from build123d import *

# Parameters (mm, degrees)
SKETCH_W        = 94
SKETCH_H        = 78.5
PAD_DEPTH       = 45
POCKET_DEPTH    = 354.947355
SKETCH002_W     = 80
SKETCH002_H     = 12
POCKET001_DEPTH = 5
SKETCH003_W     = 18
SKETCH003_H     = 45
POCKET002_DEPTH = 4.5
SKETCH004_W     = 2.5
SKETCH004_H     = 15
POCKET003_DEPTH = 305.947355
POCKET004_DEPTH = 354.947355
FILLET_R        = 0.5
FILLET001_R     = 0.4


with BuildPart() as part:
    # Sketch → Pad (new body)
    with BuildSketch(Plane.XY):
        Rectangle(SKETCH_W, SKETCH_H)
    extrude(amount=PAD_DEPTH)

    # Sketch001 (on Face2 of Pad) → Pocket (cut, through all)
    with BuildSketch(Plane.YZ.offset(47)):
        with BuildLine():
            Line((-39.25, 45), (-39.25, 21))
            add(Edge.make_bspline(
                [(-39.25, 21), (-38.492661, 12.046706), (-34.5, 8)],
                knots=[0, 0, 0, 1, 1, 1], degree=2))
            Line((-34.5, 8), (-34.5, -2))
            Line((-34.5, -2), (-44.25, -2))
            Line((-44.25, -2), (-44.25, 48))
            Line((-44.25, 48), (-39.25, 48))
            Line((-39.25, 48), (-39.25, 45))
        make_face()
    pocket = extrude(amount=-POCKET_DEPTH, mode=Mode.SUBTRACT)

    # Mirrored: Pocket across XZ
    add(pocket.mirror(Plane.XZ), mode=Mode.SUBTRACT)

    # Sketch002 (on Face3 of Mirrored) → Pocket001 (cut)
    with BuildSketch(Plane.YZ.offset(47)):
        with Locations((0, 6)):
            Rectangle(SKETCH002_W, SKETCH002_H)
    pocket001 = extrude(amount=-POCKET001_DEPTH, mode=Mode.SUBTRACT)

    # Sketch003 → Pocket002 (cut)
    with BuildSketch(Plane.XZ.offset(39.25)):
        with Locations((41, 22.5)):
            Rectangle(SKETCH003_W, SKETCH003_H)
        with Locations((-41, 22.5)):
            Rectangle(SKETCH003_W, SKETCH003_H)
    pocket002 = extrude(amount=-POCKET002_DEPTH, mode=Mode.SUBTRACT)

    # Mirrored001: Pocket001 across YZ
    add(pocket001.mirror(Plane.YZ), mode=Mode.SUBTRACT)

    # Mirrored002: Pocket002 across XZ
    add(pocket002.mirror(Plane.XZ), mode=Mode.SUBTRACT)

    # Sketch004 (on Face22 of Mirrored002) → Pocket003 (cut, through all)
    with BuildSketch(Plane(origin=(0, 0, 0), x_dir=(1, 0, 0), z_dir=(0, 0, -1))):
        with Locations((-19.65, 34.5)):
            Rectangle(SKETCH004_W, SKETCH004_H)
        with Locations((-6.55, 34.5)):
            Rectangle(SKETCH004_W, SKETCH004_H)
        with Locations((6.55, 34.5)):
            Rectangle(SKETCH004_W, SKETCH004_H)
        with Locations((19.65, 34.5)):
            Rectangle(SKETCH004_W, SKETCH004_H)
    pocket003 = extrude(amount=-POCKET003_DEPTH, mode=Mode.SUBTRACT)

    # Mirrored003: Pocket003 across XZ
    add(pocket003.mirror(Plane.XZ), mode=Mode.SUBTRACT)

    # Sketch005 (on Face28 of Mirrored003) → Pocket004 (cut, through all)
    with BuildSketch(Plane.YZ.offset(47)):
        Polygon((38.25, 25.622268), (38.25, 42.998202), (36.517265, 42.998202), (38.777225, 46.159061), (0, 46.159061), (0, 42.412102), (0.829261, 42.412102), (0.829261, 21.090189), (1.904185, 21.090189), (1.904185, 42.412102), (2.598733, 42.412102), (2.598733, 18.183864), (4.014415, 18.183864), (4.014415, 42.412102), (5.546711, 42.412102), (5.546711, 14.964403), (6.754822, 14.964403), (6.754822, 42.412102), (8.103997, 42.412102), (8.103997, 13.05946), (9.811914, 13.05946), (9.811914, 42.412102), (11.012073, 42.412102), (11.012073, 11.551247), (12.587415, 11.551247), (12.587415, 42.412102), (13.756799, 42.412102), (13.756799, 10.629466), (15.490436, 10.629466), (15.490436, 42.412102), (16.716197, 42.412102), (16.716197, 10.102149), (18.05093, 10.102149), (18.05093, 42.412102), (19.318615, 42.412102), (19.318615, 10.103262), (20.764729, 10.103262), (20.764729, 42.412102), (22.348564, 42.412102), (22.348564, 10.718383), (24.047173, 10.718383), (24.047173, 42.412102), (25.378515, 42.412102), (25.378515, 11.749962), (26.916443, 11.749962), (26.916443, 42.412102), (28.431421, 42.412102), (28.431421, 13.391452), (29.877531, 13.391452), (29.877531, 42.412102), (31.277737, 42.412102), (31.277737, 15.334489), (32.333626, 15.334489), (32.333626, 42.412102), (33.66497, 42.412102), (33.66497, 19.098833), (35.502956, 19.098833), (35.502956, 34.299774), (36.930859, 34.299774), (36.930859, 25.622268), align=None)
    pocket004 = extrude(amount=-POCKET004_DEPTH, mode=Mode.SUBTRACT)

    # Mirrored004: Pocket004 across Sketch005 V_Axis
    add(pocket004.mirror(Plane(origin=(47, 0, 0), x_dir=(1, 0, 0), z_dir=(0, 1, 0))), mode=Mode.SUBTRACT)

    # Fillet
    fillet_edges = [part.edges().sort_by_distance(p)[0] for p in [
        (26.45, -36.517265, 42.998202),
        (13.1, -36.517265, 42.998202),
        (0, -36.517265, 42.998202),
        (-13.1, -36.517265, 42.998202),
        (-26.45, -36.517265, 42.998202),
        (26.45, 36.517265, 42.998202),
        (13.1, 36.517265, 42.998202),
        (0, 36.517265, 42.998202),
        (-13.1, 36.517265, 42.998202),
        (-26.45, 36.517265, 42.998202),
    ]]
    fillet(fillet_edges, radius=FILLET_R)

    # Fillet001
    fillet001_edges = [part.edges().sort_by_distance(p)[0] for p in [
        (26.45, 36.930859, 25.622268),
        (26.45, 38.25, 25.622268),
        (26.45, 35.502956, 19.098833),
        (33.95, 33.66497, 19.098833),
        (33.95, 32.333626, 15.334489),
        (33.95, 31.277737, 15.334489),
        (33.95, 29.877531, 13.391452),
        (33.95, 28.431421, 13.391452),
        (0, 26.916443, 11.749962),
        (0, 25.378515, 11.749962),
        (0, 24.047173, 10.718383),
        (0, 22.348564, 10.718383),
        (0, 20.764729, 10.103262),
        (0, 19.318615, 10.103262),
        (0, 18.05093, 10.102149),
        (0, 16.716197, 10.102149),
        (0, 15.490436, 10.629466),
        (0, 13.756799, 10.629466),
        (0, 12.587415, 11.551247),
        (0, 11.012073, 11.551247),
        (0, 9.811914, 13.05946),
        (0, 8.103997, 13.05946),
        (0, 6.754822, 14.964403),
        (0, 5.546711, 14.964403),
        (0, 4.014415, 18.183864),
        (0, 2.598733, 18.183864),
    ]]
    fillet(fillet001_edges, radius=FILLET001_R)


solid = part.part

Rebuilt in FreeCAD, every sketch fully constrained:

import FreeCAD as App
import Part
import Sketcher
from FreeCAD import Vector
Q = App.Units.Quantity


def edges_at(feature, points):
    """Names of the edges that pass closest to the given points."""
    edges = feature.Shape.Edges
    near = lambda p: min(range(len(edges)), key=lambda i: edges[i].distToShape(Part.Vertex(*p))[0])
    return sorted({f"Edge{near(p) + 1}" for p in points})

doc = App.newDocument("Part")
body = doc.addObject("PartDesign::Body", "Body")

# Sketch on XY plane
sketch1 = body.newObject("Sketcher::SketchObject", "Sketch")
sketch1.AttachmentSupport = (doc.getObject("XY_Plane"), [""])
sketch1.MapMode = "FlatFace"
sketch1.addGeometry(Part.LineSegment(Vector(-47, 39, 0), Vector(-47, -39, 0)), False)
sketch1.addGeometry(Part.LineSegment(Vector(-47, -39, 0), Vector(47, -39, 0)), False)
sketch1.addGeometry(Part.LineSegment(Vector(47, -39, 0), Vector(47, 39, 0)), False)
sketch1.addGeometry(Part.LineSegment(Vector(47, 39, 0), Vector(-47, 39, 0)), False)
sketch1.addConstraint(Sketcher.Constraint("Coincident", 0, 2, 1, 1))
sketch1.addConstraint(Sketcher.Constraint("Coincident", 1, 2, 2, 1))
sketch1.addConstraint(Sketcher.Constraint("Coincident", 2, 2, 3, 1))
sketch1.addConstraint(Sketcher.Constraint("Coincident", 3, 2, 0, 1))
sketch1.addConstraint(Sketcher.Constraint("Vertical", 0))
sketch1.addConstraint(Sketcher.Constraint("Horizontal", 1))
sketch1.addConstraint(Sketcher.Constraint("Vertical", 2))
sketch1.addConstraint(Sketcher.Constraint("Horizontal", 3))
sketch1.addConstraint(Sketcher.Constraint("Symmetric", 0, 2, 2, 2, -1, 1))
sketch1.addConstraint(Sketcher.Constraint("DistanceX", 1, 1, 1, 2, Q("94 mm")))
sketch1.addConstraint(Sketcher.Constraint("DistanceY", 0, 2, 0, 1, Q("78.5 mm")))
pad1 = body.newObject("PartDesign::Pad", "Pad")
pad1.Profile = sketch1
pad1.Length = 45

# Sketch on YZ plane
sketch2 = body.newObject("Sketcher::SketchObject", "Sketch001")
sketch2.AttachmentSupport = (doc.getObject("YZ_Plane"), [""])
sketch2.MapMode = "FlatFace"
sketch2.AttachmentOffset = App.Placement(Vector(0, 0, 47), App.Rotation())
sketch2.addGeometry(Part.BSplineCurve([Vector(-39.25, 21, 0), Vector(-38.492661, 12.046706, 0), Vector(-34.5, 8, 0)], [3, 3], [0, 1], False, 2, [1, 1, 1], False), False)
sketch2.addGeometry(Part.LineSegment(Vector(-39.25, 21, 0), Vector(-39.25, 48, 0)), False)
sketch2.addGeometry(Part.LineSegment(Vector(-39.25, 48, 0), Vector(-44.25, 48, 0)), False)
sketch2.addGeometry(Part.LineSegment(Vector(-44.25, 48, 0), Vector(-44.25, -2, 0)), False)
sketch2.addGeometry(Part.LineSegment(Vector(-44.25, -2, 0), Vector(-34.5, -2, 0)), False)
sketch2.addGeometry(Part.LineSegment(Vector(-34.5, -2, 0), Vector(-34.5, 8, 0)), False)
sketch2.addConstraint(Sketcher.Constraint("Block", 0))
sketch2.addConstraint(Sketcher.Constraint("Coincident", 0, 1, 1, 1))
sketch2.addConstraint(Sketcher.Constraint("Coincident", 1, 2, 2, 1))
sketch2.addConstraint(Sketcher.Constraint("Coincident", 2, 2, 3, 1))
sketch2.addConstraint(Sketcher.Constraint("Coincident", 3, 2, 4, 1))
sketch2.addConstraint(Sketcher.Constraint("Coincident", 4, 2, 5, 1))
sketch2.addConstraint(Sketcher.Constraint("Coincident", 5, 2, 0, 2))
sketch2.addConstraint(Sketcher.Constraint("Vertical", 1))
sketch2.addConstraint(Sketcher.Constraint("Horizontal", 2))
sketch2.addConstraint(Sketcher.Constraint("Vertical", 3))
sketch2.addConstraint(Sketcher.Constraint("Horizontal", 4))
sketch2.addConstraint(Sketcher.Constraint("Vertical", 5))
sketch2.addConstraint(Sketcher.Constraint("DistanceX", 2, 2, 2, 1, Q("5 mm")))
sketch2.addConstraint(Sketcher.Constraint("DistanceY", 1, 1, 1, 2, Q("27 mm")))
sketch2.addConstraint(Sketcher.Constraint("DistanceY", 3, 2, 3, 1, Q("50 mm")))
pocket1 = body.newObject("PartDesign::Pocket", "Pocket")
pocket1.Profile = sketch2
pocket1.Type = "ThroughAll"
doc.recompute()

mirrored = body.newObject("PartDesign::Mirrored", "Mirrored")
mirrored.Originals = [pocket1]
mirrored.MirrorPlane = (doc.getObject("XZ_Plane"), [""])
body.Tip = mirrored

# Sketch on YZ plane
sketch3 = body.newObject("Sketcher::SketchObject", "Sketch002")
sketch3.AttachmentSupport = (doc.getObject("YZ_Plane"), [""])
sketch3.MapMode = "FlatFace"
sketch3.AttachmentOffset = App.Placement(Vector(0, 0, 47), App.Rotation())
sketch3.addGeometry(Part.LineSegment(Vector(-40, 12, 0), Vector(-40, 0, 0)), False)
sketch3.addGeometry(Part.LineSegment(Vector(-40, 0, 0), Vector(40, 0, 0)), False)
sketch3.addGeometry(Part.LineSegment(Vector(40, 0, 0), Vector(40, 12, 0)), False)
sketch3.addGeometry(Part.LineSegment(Vector(40, 12, 0), Vector(-40, 12, 0)), False)
sketch3.addConstraint(Sketcher.Constraint("Coincident", 0, 2, 1, 1))
sketch3.addConstraint(Sketcher.Constraint("Coincident", 1, 2, 2, 1))
sketch3.addConstraint(Sketcher.Constraint("Coincident", 2, 2, 3, 1))
sketch3.addConstraint(Sketcher.Constraint("Coincident", 3, 2, 0, 1))
sketch3.addConstraint(Sketcher.Constraint("Vertical", 0))
sketch3.addConstraint(Sketcher.Constraint("Horizontal", 1))
sketch3.addConstraint(Sketcher.Constraint("Vertical", 2))
sketch3.addConstraint(Sketcher.Constraint("Horizontal", 3))
sketch3.addConstraint(Sketcher.Constraint("Symmetric", 0, 2, 1, 2, -1, 1))
sketch3.addConstraint(Sketcher.Constraint("DistanceX", 1, 1, 1, 2, Q("80 mm")))
sketch3.addConstraint(Sketcher.Constraint("DistanceY", 0, 2, 0, 1, Q("12 mm")))
pocket2 = body.newObject("PartDesign::Pocket", "Pocket001")
pocket2.Profile = sketch3
pocket2.Length = 5

# Sketch on XZ plane
sketch4 = body.newObject("Sketcher::SketchObject", "Sketch003")
sketch4.AttachmentSupport = (doc.getObject("XZ_Plane"), [""])
sketch4.MapMode = "FlatFace"
sketch4.AttachmentOffset = App.Placement(Vector(0, 0, 39.25), App.Rotation())
sketch4.addGeometry(Part.LineSegment(Vector(32, 45, 0), Vector(32, 0, 0)), False)
sketch4.addGeometry(Part.LineSegment(Vector(32, 0, 0), Vector(50, 0, 0)), False)
sketch4.addGeometry(Part.LineSegment(Vector(50, 0, 0), Vector(50, 45, 0)), False)
sketch4.addGeometry(Part.LineSegment(Vector(50, 45, 0), Vector(32, 45, 0)), False)
sketch4.addGeometry(Part.LineSegment(Vector(-50, 45, 0), Vector(-50, 0, 0)), False)
sketch4.addGeometry(Part.LineSegment(Vector(-50, 0, 0), Vector(-32, 0, 0)), False)
sketch4.addGeometry(Part.LineSegment(Vector(-32, 0, 0), Vector(-32, 45, 0)), False)
sketch4.addGeometry(Part.LineSegment(Vector(-32, 45, 0), Vector(-50, 45, 0)), False)
sketch4.addConstraint(Sketcher.Constraint("Coincident", 0, 2, 1, 1))
sketch4.addConstraint(Sketcher.Constraint("Coincident", 1, 2, 2, 1))
sketch4.addConstraint(Sketcher.Constraint("Coincident", 2, 2, 3, 1))
sketch4.addConstraint(Sketcher.Constraint("Coincident", 3, 2, 0, 1))
sketch4.addConstraint(Sketcher.Constraint("Coincident", 4, 2, 5, 1))
sketch4.addConstraint(Sketcher.Constraint("Coincident", 5, 2, 6, 1))
sketch4.addConstraint(Sketcher.Constraint("Coincident", 6, 2, 7, 1))
sketch4.addConstraint(Sketcher.Constraint("Coincident", 7, 2, 4, 1))
sketch4.addConstraint(Sketcher.Constraint("Vertical", 0))
sketch4.addConstraint(Sketcher.Constraint("Horizontal", 1))
sketch4.addConstraint(Sketcher.Constraint("Vertical", 2))
sketch4.addConstraint(Sketcher.Constraint("Horizontal", 3))
sketch4.addConstraint(Sketcher.Constraint("Vertical", 4))
sketch4.addConstraint(Sketcher.Constraint("Horizontal", 5))
sketch4.addConstraint(Sketcher.Constraint("Vertical", 6))
sketch4.addConstraint(Sketcher.Constraint("Horizontal", 7))
sketch4.addConstraint(Sketcher.Constraint("Symmetric", 1, 2, 4, 2, -1, 1))
sketch4.addConstraint(Sketcher.Constraint("Symmetric", 0, 2, 5, 2, -2))
sketch4.addConstraint(Sketcher.Constraint("Horizontal", 3, 2, 6, 2))
sketch4.addConstraint(Sketcher.Constraint("DistanceX", 1, 1, 1, 2, Q("18 mm")))
sketch4.addConstraint(Sketcher.Constraint("DistanceY", 0, 2, 0, 1, Q("45 mm")))
sketch4.addConstraint(Sketcher.Constraint("DistanceX", -1, 1, 0, 2, Q("32 mm")))
pocket3 = body.newObject("PartDesign::Pocket", "Pocket002")
pocket3.Profile = sketch4
pocket3.Length = 4.5
doc.recompute()

mirrored2 = body.newObject("PartDesign::Mirrored", "Mirrored001")
mirrored2.Originals = [pocket2]
mirrored2.MirrorPlane = (doc.getObject("YZ_Plane"), [""])
body.Tip = mirrored2
doc.recompute()

mirrored3 = body.newObject("PartDesign::Mirrored", "Mirrored002")
mirrored3.Originals = [pocket3]
mirrored3.MirrorPlane = (doc.getObject("XZ_Plane"), [""])
body.Tip = mirrored3

# Sketch on XY plane
sketch5 = body.newObject("Sketcher::SketchObject", "Sketch004")
sketch5.AttachmentSupport = (doc.getObject("XY_Plane"), [""])
sketch5.MapMode = "FlatFace"
sketch5.addGeometry(Part.LineSegment(Vector(-20.9, -42, 0), Vector(-20.9, -27, 0)), False)
sketch5.addGeometry(Part.LineSegment(Vector(-20.9, -27, 0), Vector(-18.4, -27, 0)), False)
sketch5.addGeometry(Part.LineSegment(Vector(-18.4, -27, 0), Vector(-18.4, -42, 0)), False)
sketch5.addGeometry(Part.LineSegment(Vector(-18.4, -42, 0), Vector(-20.9, -42, 0)), False)
sketch5.addGeometry(Part.LineSegment(Vector(-7.8, -42, 0), Vector(-7.8, -27, 0)), False)
sketch5.addGeometry(Part.LineSegment(Vector(-7.8, -27, 0), Vector(-5.3, -27, 0)), False)
sketch5.addGeometry(Part.LineSegment(Vector(-5.3, -27, 0), Vector(-5.3, -42, 0)), False)
sketch5.addGeometry(Part.LineSegment(Vector(-5.3, -42, 0), Vector(-7.8, -42, 0)), False)
sketch5.addGeometry(Part.LineSegment(Vector(5.3, -42, 0), Vector(5.3, -27, 0)), False)
sketch5.addGeometry(Part.LineSegment(Vector(5.3, -27, 0), Vector(7.8, -27, 0)), False)
sketch5.addGeometry(Part.LineSegment(Vector(7.8, -27, 0), Vector(7.8, -42, 0)), False)
sketch5.addGeometry(Part.LineSegment(Vector(7.8, -42, 0), Vector(5.3, -42, 0)), False)
sketch5.addGeometry(Part.LineSegment(Vector(18.4, -42, 0), Vector(18.4, -27, 0)), False)
sketch5.addGeometry(Part.LineSegment(Vector(18.4, -27, 0), Vector(20.9, -27, 0)), False)
sketch5.addGeometry(Part.LineSegment(Vector(20.9, -27, 0), Vector(20.9, -42, 0)), False)
sketch5.addGeometry(Part.LineSegment(Vector(20.9, -42, 0), Vector(18.4, -42, 0)), False)
sketch5.addConstraint(Sketcher.Constraint("Coincident", 0, 2, 1, 1))
sketch5.addConstraint(Sketcher.Constraint("Coincident", 1, 2, 2, 1))
sketch5.addConstraint(Sketcher.Constraint("Coincident", 2, 2, 3, 1))
sketch5.addConstraint(Sketcher.Constraint("Coincident", 3, 2, 0, 1))
sketch5.addConstraint(Sketcher.Constraint("Coincident", 4, 2, 5, 1))
sketch5.addConstraint(Sketcher.Constraint("Coincident", 5, 2, 6, 1))
sketch5.addConstraint(Sketcher.Constraint("Coincident", 6, 2, 7, 1))
sketch5.addConstraint(Sketcher.Constraint("Coincident", 7, 2, 4, 1))
sketch5.addConstraint(Sketcher.Constraint("Coincident", 8, 2, 9, 1))
sketch5.addConstraint(Sketcher.Constraint("Coincident", 9, 2, 10, 1))
sketch5.addConstraint(Sketcher.Constraint("Coincident", 10, 2, 11, 1))
sketch5.addConstraint(Sketcher.Constraint("Coincident", 11, 2, 8, 1))
sketch5.addConstraint(Sketcher.Constraint("Coincident", 12, 2, 13, 1))
sketch5.addConstraint(Sketcher.Constraint("Coincident", 13, 2, 14, 1))
sketch5.addConstraint(Sketcher.Constraint("Coincident", 14, 2, 15, 1))
sketch5.addConstraint(Sketcher.Constraint("Coincident", 15, 2, 12, 1))
sketch5.addConstraint(Sketcher.Constraint("Vertical", 0))
sketch5.addConstraint(Sketcher.Constraint("Horizontal", 1))
sketch5.addConstraint(Sketcher.Constraint("Vertical", 2))
sketch5.addConstraint(Sketcher.Constraint("Horizontal", 3))
sketch5.addConstraint(Sketcher.Constraint("Vertical", 4))
sketch5.addConstraint(Sketcher.Constraint("Horizontal", 5))
sketch5.addConstraint(Sketcher.Constraint("Vertical", 6))
sketch5.addConstraint(Sketcher.Constraint("Horizontal", 7))
sketch5.addConstraint(Sketcher.Constraint("Vertical", 8))
sketch5.addConstraint(Sketcher.Constraint("Horizontal", 9))
sketch5.addConstraint(Sketcher.Constraint("Vertical", 10))
sketch5.addConstraint(Sketcher.Constraint("Horizontal", 11))
sketch5.addConstraint(Sketcher.Constraint("Vertical", 12))
sketch5.addConstraint(Sketcher.Constraint("Horizontal", 13))
sketch5.addConstraint(Sketcher.Constraint("Vertical", 14))
sketch5.addConstraint(Sketcher.Constraint("Horizontal", 15))
sketch5.addConstraint(Sketcher.Constraint("Symmetric", 5, 2, 8, 2, -2))
sketch5.addConstraint(Sketcher.Constraint("Symmetric", 7, 2, 10, 2, -2))
sketch5.addConstraint(Sketcher.Constraint("Symmetric", 1, 2, 12, 2, -2))
sketch5.addConstraint(Sketcher.Constraint("Symmetric", 3, 2, 14, 2, -2))
sketch5.addConstraint(Sketcher.Constraint("Horizontal", 1, 2, 4, 2))
sketch5.addConstraint(Sketcher.Constraint("Horizontal", 3, 2, 6, 2))
sketch5.addConstraint(Sketcher.Constraint("Equal", 3, 5))
sketch5.addConstraint(Sketcher.Constraint("DistanceY", 0, 1, 0, 2, Q("15 mm")))
sketch5.addConstraint(Sketcher.Constraint("DistanceX", 1, 1, 1, 2, Q("2.5 mm")))
sketch5.addConstraint(Sketcher.Constraint("DistanceY", 0, 2, -1, 1, Q("27 mm")))
sketch5.addConstraint(Sketcher.Constraint("DistanceX", 0, 2, -1, 1, Q("20.9 mm")))
sketch5.addConstraint(Sketcher.Constraint("DistanceX", 4, 2, -1, 1, Q("7.8 mm")))
pocket4 = body.newObject("PartDesign::Pocket", "Pocket003")
pocket4.Profile = sketch5
pocket4.Type = "ThroughAll"
pocket4.Reversed = True
doc.recompute()

mirrored4 = body.newObject("PartDesign::Mirrored", "Mirrored003")
mirrored4.Originals = [pocket4]
mirrored4.MirrorPlane = (doc.getObject("XZ_Plane"), [""])
body.Tip = mirrored4

# Sketch on YZ plane
sketch6 = body.newObject("Sketcher::SketchObject", "Sketch005")
sketch6.AttachmentSupport = (doc.getObject("YZ_Plane"), [""])
sketch6.MapMode = "FlatFace"
sketch6.AttachmentOffset = App.Placement(Vector(0, 0, 47), App.Rotation())
sketch6.addGeometry(Part.LineSegment(Vector(38.2, 25.6, 0), Vector(38.2, 43, 0)), False)
sketch6.addGeometry(Part.LineSegment(Vector(38.2, 43, 0), Vector(36.5, 43, 0)), False)
sketch6.addGeometry(Part.LineSegment(Vector(36.5, 43, 0), Vector(38.8, 46.2, 0)), False)
sketch6.addGeometry(Part.LineSegment(Vector(38.8, 46.2, 0), Vector(0, 46.2, 0)), False)
sketch6.addGeometry(Part.LineSegment(Vector(0, 46.2, 0), Vector(0, 42.4, 0)), False)
sketch6.addGeometry(Part.LineSegment(Vector(0, 42.4, 0), Vector(0.8, 42.4, 0)), False)
sketch6.addGeometry(Part.LineSegment(Vector(0.8, 42.4, 0), Vector(0.8, 21.1, 0)), False)
sketch6.addGeometry(Part.LineSegment(Vector(0.8, 21.1, 0), Vector(1.9, 21.1, 0)), False)
sketch6.addGeometry(Part.LineSegment(Vector(1.9, 21.1, 0), Vector(1.9, 42.4, 0)), False)
sketch6.addGeometry(Part.LineSegment(Vector(1.9, 42.4, 0), Vector(2.6, 42.4, 0)), False)
sketch6.addGeometry(Part.LineSegment(Vector(2.6, 42.4, 0), Vector(2.6, 18.2, 0)), False)
sketch6.addGeometry(Part.LineSegment(Vector(2.6, 18.2, 0), Vector(4, 18.2, 0)), False)
sketch6.addGeometry(Part.LineSegment(Vector(4, 18.2, 0), Vector(4, 42.4, 0)), False)
sketch6.addGeometry(Part.LineSegment(Vector(4, 42.4, 0), Vector(5.5, 42.4, 0)), False)
sketch6.addGeometry(Part.LineSegment(Vector(5.5, 42.4, 0), Vector(5.5, 15, 0)), False)
sketch6.addGeometry(Part.LineSegment(Vector(5.5, 15, 0), Vector(6.8, 15, 0)), False)
sketch6.addGeometry(Part.LineSegment(Vector(6.8, 15, 0), Vector(6.8, 42.4, 0)), False)
sketch6.addGeometry(Part.LineSegment(Vector(6.8, 42.4, 0), Vector(8.1, 42.4, 0)), False)
sketch6.addGeometry(Part.LineSegment(Vector(8.1, 42.4, 0), Vector(8.1, 13.1, 0)), False)
sketch6.addGeometry(Part.LineSegment(Vector(8.1, 13.1, 0), Vector(9.8, 13.1, 0)), False)
sketch6.addGeometry(Part.LineSegment(Vector(9.8, 13.1, 0), Vector(9.8, 42.4, 0)), False)
sketch6.addGeometry(Part.LineSegment(Vector(9.8, 42.4, 0), Vector(11, 42.4, 0)), False)
sketch6.addGeometry(Part.LineSegment(Vector(11, 42.4, 0), Vector(11, 11.6, 0)), False)
sketch6.addGeometry(Part.LineSegment(Vector(11, 11.6, 0), Vector(12.6, 11.6, 0)), False)
sketch6.addGeometry(Part.LineSegment(Vector(12.6, 11.6, 0), Vector(12.6, 42.4, 0)), False)
sketch6.addGeometry(Part.LineSegment(Vector(12.6, 42.4, 0), Vector(13.8, 42.4, 0)), False)
sketch6.addGeometry(Part.LineSegment(Vector(13.8, 42.4, 0), Vector(13.8, 10.6, 0)), False)
sketch6.addGeometry(Part.LineSegment(Vector(13.8, 10.6, 0), Vector(15.5, 10.6, 0)), False)
sketch6.addGeometry(Part.LineSegment(Vector(15.5, 10.6, 0), Vector(15.5, 42.4, 0)), False)
sketch6.addGeometry(Part.LineSegment(Vector(15.5, 42.4, 0), Vector(16.7, 42.4, 0)), False)
sketch6.addGeometry(Part.LineSegment(Vector(16.7, 42.4, 0), Vector(16.7, 10.1, 0)), False)
sketch6.addGeometry(Part.LineSegment(Vector(16.7, 10.1, 0), Vector(18.1, 10.1, 0)), False)
sketch6.addGeometry(Part.LineSegment(Vector(18.1, 10.1, 0), Vector(18.1, 42.4, 0)), False)
sketch6.addGeometry(Part.LineSegment(Vector(18.1, 42.4, 0), Vector(19.3, 42.4, 0)), False)
sketch6.addGeometry(Part.LineSegment(Vector(19.3, 42.4, 0), Vector(19.3, 10.1, 0)), False)
sketch6.addGeometry(Part.LineSegment(Vector(19.3, 10.1, 0), Vector(20.8, 10.1, 0)), False)
sketch6.addGeometry(Part.LineSegment(Vector(20.8, 10.1, 0), Vector(20.8, 42.4, 0)), False)
sketch6.addGeometry(Part.LineSegment(Vector(20.8, 42.4, 0), Vector(22.3, 42.4, 0)), False)
sketch6.addGeometry(Part.LineSegment(Vector(22.3, 42.4, 0), Vector(22.3, 10.7, 0)), False)
sketch6.addGeometry(Part.LineSegment(Vector(22.3, 10.7, 0), Vector(24, 10.7, 0)), False)
sketch6.addGeometry(Part.LineSegment(Vector(24, 10.7, 0), Vector(24, 42.4, 0)), False)
sketch6.addGeometry(Part.LineSegment(Vector(24, 42.4, 0), Vector(25.4, 42.4, 0)), False)
sketch6.addGeometry(Part.LineSegment(Vector(25.4, 42.4, 0), Vector(25.4, 11.7, 0)), False)
sketch6.addGeometry(Part.LineSegment(Vector(25.4, 11.7, 0), Vector(26.9, 11.7, 0)), False)
sketch6.addGeometry(Part.LineSegment(Vector(26.9, 11.7, 0), Vector(26.9, 42.4, 0)), False)
sketch6.addGeometry(Part.LineSegment(Vector(26.9, 42.4, 0), Vector(28.4, 42.4, 0)), False)
sketch6.addGeometry(Part.LineSegment(Vector(28.4, 42.4, 0), Vector(28.4, 13.4, 0)), False)
sketch6.addGeometry(Part.LineSegment(Vector(28.4, 13.4, 0), Vector(29.9, 13.4, 0)), False)
sketch6.addGeometry(Part.LineSegment(Vector(29.9, 13.4, 0), Vector(29.9, 42.4, 0)), False)
sketch6.addGeometry(Part.LineSegment(Vector(29.9, 42.4, 0), Vector(31.3, 42.4, 0)), False)
sketch6.addGeometry(Part.LineSegment(Vector(31.3, 42.4, 0), Vector(31.3, 15.3, 0)), False)
sketch6.addGeometry(Part.LineSegment(Vector(31.3, 15.3, 0), Vector(32.3, 15.3, 0)), False)
sketch6.addGeometry(Part.LineSegment(Vector(32.3, 15.3, 0), Vector(32.3, 42.4, 0)), False)
sketch6.addGeometry(Part.LineSegment(Vector(32.3, 42.4, 0), Vector(33.7, 42.4, 0)), False)
sketch6.addGeometry(Part.LineSegment(Vector(33.7, 42.4, 0), Vector(33.7, 19.1, 0)), False)
sketch6.addGeometry(Part.LineSegment(Vector(33.7, 19.1, 0), Vector(35.5, 19.1, 0)), False)
sketch6.addGeometry(Part.LineSegment(Vector(35.5, 19.1, 0), Vector(35.5, 34.3, 0)), False)
sketch6.addGeometry(Part.LineSegment(Vector(35.5, 34.3, 0), Vector(36.9, 34.3, 0)), False)
sketch6.addGeometry(Part.LineSegment(Vector(36.9, 34.3, 0), Vector(36.9, 25.6, 0)), False)
sketch6.addGeometry(Part.LineSegment(Vector(36.9, 25.6, 0), Vector(38.2, 25.6, 0)), False)
sketch6.addConstraint(Sketcher.Constraint("Coincident", 0, 2, 1, 1))
sketch6.addConstraint(Sketcher.Constraint("Coincident", 1, 2, 2, 1))
sketch6.addConstraint(Sketcher.Constraint("Coincident", 2, 2, 3, 1))
sketch6.addConstraint(Sketcher.Constraint("Coincident", 3, 2, 4, 1))
sketch6.addConstraint(Sketcher.Constraint("Coincident", 4, 2, 5, 1))
sketch6.addConstraint(Sketcher.Constraint("Coincident", 5, 2, 6, 1))
sketch6.addConstraint(Sketcher.Constraint("Coincident", 6, 2, 7, 1))
sketch6.addConstraint(Sketcher.Constraint("Coincident", 7, 2, 8, 1))
sketch6.addConstraint(Sketcher.Constraint("Coincident", 8, 2, 9, 1))
sketch6.addConstraint(Sketcher.Constraint("Coincident", 9, 2, 10, 1))
sketch6.addConstraint(Sketcher.Constraint("Coincident", 10, 2, 11, 1))
sketch6.addConstraint(Sketcher.Constraint("Coincident", 11, 2, 12, 1))
sketch6.addConstraint(Sketcher.Constraint("Coincident", 12, 2, 13, 1))
sketch6.addConstraint(Sketcher.Constraint("Coincident", 13, 2, 14, 1))
sketch6.addConstraint(Sketcher.Constraint("Coincident", 14, 2, 15, 1))
sketch6.addConstraint(Sketcher.Constraint("Coincident", 15, 2, 16, 1))
sketch6.addConstraint(Sketcher.Constraint("Coincident", 16, 2, 17, 1))
sketch6.addConstraint(Sketcher.Constraint("Coincident", 17, 2, 18, 1))
sketch6.addConstraint(Sketcher.Constraint("Coincident", 18, 2, 19, 1))
sketch6.addConstraint(Sketcher.Constraint("Coincident", 19, 2, 20, 1))
sketch6.addConstraint(Sketcher.Constraint("Coincident", 20, 2, 21, 1))
sketch6.addConstraint(Sketcher.Constraint("Coincident", 21, 2, 22, 1))
sketch6.addConstraint(Sketcher.Constraint("Coincident", 22, 2, 23, 1))
sketch6.addConstraint(Sketcher.Constraint("Coincident", 23, 2, 24, 1))
sketch6.addConstraint(Sketcher.Constraint("Coincident", 24, 2, 25, 1))
sketch6.addConstraint(Sketcher.Constraint("Coincident", 25, 2, 26, 1))
sketch6.addConstraint(Sketcher.Constraint("Coincident", 26, 2, 27, 1))
sketch6.addConstraint(Sketcher.Constraint("Coincident", 27, 2, 28, 1))
sketch6.addConstraint(Sketcher.Constraint("Coincident", 28, 2, 29, 1))
sketch6.addConstraint(Sketcher.Constraint("Coincident", 29, 2, 30, 1))
sketch6.addConstraint(Sketcher.Constraint("Coincident", 30, 2, 31, 1))
sketch6.addConstraint(Sketcher.Constraint("Coincident", 31, 2, 32, 1))
sketch6.addConstraint(Sketcher.Constraint("Coincident", 32, 2, 33, 1))
sketch6.addConstraint(Sketcher.Constraint("Coincident", 33, 2, 34, 1))
sketch6.addConstraint(Sketcher.Constraint("Coincident", 34, 2, 35, 1))
sketch6.addConstraint(Sketcher.Constraint("Coincident", 35, 2, 36, 1))
sketch6.addConstraint(Sketcher.Constraint("Coincident", 36, 2, 37, 1))
sketch6.addConstraint(Sketcher.Constraint("Coincident", 37, 2, 38, 1))
sketch6.addConstraint(Sketcher.Constraint("Coincident", 38, 2, 39, 1))
sketch6.addConstraint(Sketcher.Constraint("Coincident", 39, 2, 40, 1))
sketch6.addConstraint(Sketcher.Constraint("Coincident", 40, 2, 41, 1))
sketch6.addConstraint(Sketcher.Constraint("Coincident", 41, 2, 42, 1))
sketch6.addConstraint(Sketcher.Constraint("Coincident", 42, 2, 43, 1))
sketch6.addConstraint(Sketcher.Constraint("Coincident", 43, 2, 44, 1))
sketch6.addConstraint(Sketcher.Constraint("Coincident", 44, 2, 45, 1))
sketch6.addConstraint(Sketcher.Constraint("Coincident", 45, 2, 46, 1))
sketch6.addConstraint(Sketcher.Constraint("Coincident", 46, 2, 47, 1))
sketch6.addConstraint(Sketcher.Constraint("Coincident", 47, 2, 48, 1))
sketch6.addConstraint(Sketcher.Constraint("Coincident", 48, 2, 49, 1))
sketch6.addConstraint(Sketcher.Constraint("Coincident", 49, 2, 50, 1))
sketch6.addConstraint(Sketcher.Constraint("Coincident", 50, 2, 51, 1))
sketch6.addConstraint(Sketcher.Constraint("Coincident", 51, 2, 52, 1))
sketch6.addConstraint(Sketcher.Constraint("Coincident", 52, 2, 53, 1))
sketch6.addConstraint(Sketcher.Constraint("Coincident", 53, 2, 54, 1))
sketch6.addConstraint(Sketcher.Constraint("Coincident", 54, 2, 55, 1))
sketch6.addConstraint(Sketcher.Constraint("Coincident", 55, 2, 56, 1))
sketch6.addConstraint(Sketcher.Constraint("Coincident", 56, 2, 57, 1))
sketch6.addConstraint(Sketcher.Constraint("Coincident", 57, 2, 58, 1))
sketch6.addConstraint(Sketcher.Constraint("Coincident", 58, 2, 59, 1))
sketch6.addConstraint(Sketcher.Constraint("Coincident", 59, 2, 0, 1))
sketch6.addConstraint(Sketcher.Constraint("Vertical", 0))
sketch6.addConstraint(Sketcher.Constraint("Horizontal", 1))
sketch6.addConstraint(Sketcher.Constraint("Horizontal", 3))
sketch6.addConstraint(Sketcher.Constraint("Vertical", 4))
sketch6.addConstraint(Sketcher.Constraint("Horizontal", 5))
sketch6.addConstraint(Sketcher.Constraint("Vertical", 6))
sketch6.addConstraint(Sketcher.Constraint("Horizontal", 7))
sketch6.addConstraint(Sketcher.Constraint("Vertical", 8))
sketch6.addConstraint(Sketcher.Constraint("Horizontal", 9))
sketch6.addConstraint(Sketcher.Constraint("Vertical", 10))
sketch6.addConstraint(Sketcher.Constraint("Horizontal", 11))
sketch6.addConstraint(Sketcher.Constraint("Vertical", 12))
sketch6.addConstraint(Sketcher.Constraint("Horizontal", 13))
sketch6.addConstraint(Sketcher.Constraint("Vertical", 14))
sketch6.addConstraint(Sketcher.Constraint("Horizontal", 15))
sketch6.addConstraint(Sketcher.Constraint("Vertical", 16))
sketch6.addConstraint(Sketcher.Constraint("Horizontal", 17))
sketch6.addConstraint(Sketcher.Constraint("Vertical", 18))
sketch6.addConstraint(Sketcher.Constraint("Horizontal", 19))
sketch6.addConstraint(Sketcher.Constraint("Vertical", 20))
sketch6.addConstraint(Sketcher.Constraint("Horizontal", 21))
sketch6.addConstraint(Sketcher.Constraint("Vertical", 22))
sketch6.addConstraint(Sketcher.Constraint("Horizontal", 23))
sketch6.addConstraint(Sketcher.Constraint("Vertical", 24))
sketch6.addConstraint(Sketcher.Constraint("Horizontal", 25))
sketch6.addConstraint(Sketcher.Constraint("Vertical", 26))
sketch6.addConstraint(Sketcher.Constraint("Horizontal", 27))
sketch6.addConstraint(Sketcher.Constraint("Vertical", 28))
sketch6.addConstraint(Sketcher.Constraint("Horizontal", 29))
sketch6.addConstraint(Sketcher.Constraint("Vertical", 30))
sketch6.addConstraint(Sketcher.Constraint("Horizontal", 31))
sketch6.addConstraint(Sketcher.Constraint("Vertical", 32))
sketch6.addConstraint(Sketcher.Constraint("Horizontal", 33))
sketch6.addConstraint(Sketcher.Constraint("Vertical", 34))
sketch6.addConstraint(Sketcher.Constraint("Horizontal", 35))
sketch6.addConstraint(Sketcher.Constraint("Vertical", 36))
sketch6.addConstraint(Sketcher.Constraint("Horizontal", 37))
sketch6.addConstraint(Sketcher.Constraint("Vertical", 38))
sketch6.addConstraint(Sketcher.Constraint("Horizontal", 39))
sketch6.addConstraint(Sketcher.Constraint("Vertical", 40))
sketch6.addConstraint(Sketcher.Constraint("Horizontal", 41))
sketch6.addConstraint(Sketcher.Constraint("Vertical", 42))
sketch6.addConstraint(Sketcher.Constraint("Horizontal", 43))
sketch6.addConstraint(Sketcher.Constraint("Vertical", 44))
sketch6.addConstraint(Sketcher.Constraint("Horizontal", 45))
sketch6.addConstraint(Sketcher.Constraint("Vertical", 46))
sketch6.addConstraint(Sketcher.Constraint("Horizontal", 47))
sketch6.addConstraint(Sketcher.Constraint("Vertical", 48))
sketch6.addConstraint(Sketcher.Constraint("Horizontal", 49))
sketch6.addConstraint(Sketcher.Constraint("Vertical", 50))
sketch6.addConstraint(Sketcher.Constraint("Horizontal", 51))
sketch6.addConstraint(Sketcher.Constraint("Vertical", 52))
sketch6.addConstraint(Sketcher.Constraint("Horizontal", 53))
sketch6.addConstraint(Sketcher.Constraint("Vertical", 54))
sketch6.addConstraint(Sketcher.Constraint("Horizontal", 55))
sketch6.addConstraint(Sketcher.Constraint("Vertical", 56))
sketch6.addConstraint(Sketcher.Constraint("Horizontal", 57))
sketch6.addConstraint(Sketcher.Constraint("Vertical", 58))
sketch6.addConstraint(Sketcher.Constraint("Horizontal", 59))
sketch6.addConstraint(Sketcher.Constraint("PointOnObject", 3, 2, -2))
sketch6.addConstraint(Sketcher.Constraint("Horizontal", 5, 2, 8, 2))
sketch6.addConstraint(Sketcher.Constraint("Horizontal", 9, 2, 12, 2))
sketch6.addConstraint(Sketcher.Constraint("Horizontal", 13, 2, 16, 2))
sketch6.addConstraint(Sketcher.Constraint("Horizontal", 17, 2, 20, 2))
sketch6.addConstraint(Sketcher.Constraint("Horizontal", 21, 2, 24, 2))
sketch6.addConstraint(Sketcher.Constraint("Horizontal", 25, 2, 28, 2))
sketch6.addConstraint(Sketcher.Constraint("Horizontal", 29, 2, 32, 2))
sketch6.addConstraint(Sketcher.Constraint("Horizontal", 33, 2, 36, 2))
sketch6.addConstraint(Sketcher.Constraint("Horizontal", 37, 2, 40, 2))
sketch6.addConstraint(Sketcher.Constraint("Horizontal", 41, 2, 44, 2))
sketch6.addConstraint(Sketcher.Constraint("Horizontal", 45, 2, 48, 2))
sketch6.addConstraint(Sketcher.Constraint("Horizontal", 49, 2, 52, 2))
sketch6.addConstraint(Sketcher.Constraint("Equal", 41, 53))
sketch6.addConstraint(Sketcher.Constraint("DistanceX", -1, 1, 0, 2, Q("38.25 mm")))
sketch6.addConstraint(Sketcher.Constraint("DistanceY", 14, 2, 14, 1, Q("27.447699 mm")))
sketch6.addConstraint(Sketcher.Constraint("DistanceX", 5, 1, 5, 2, Q("0.829261 mm")))
sketch6.addConstraint(Sketcher.Constraint("DistanceX", 9, 1, 9, 2, Q("0.694548 mm")))
sketch6.addConstraint(Sketcher.Constraint("DistanceX", 11, 1, 11, 2, Q("1.415682 mm")))
sketch6.addConstraint(Sketcher.Constraint("DistanceX", 15, 1, 15, 2, Q("1.208111 mm")))
sketch6.addConstraint(Sketcher.Constraint("DistanceX", 21, 1, 21, 2, Q("1.200159 mm")))
sketch6.addConstraint(Sketcher.Constraint("DistanceX", 29, 1, 29, 2, Q("1.225761 mm")))
sketch6.addConstraint(Sketcher.Constraint("DistanceX", 39, 1, 39, 2, Q("1.698609 mm")))
sketch6.addConstraint(Sketcher.Constraint("DistanceX", 41, 1, 41, 2, Q("1.331342 mm")))
sketch6.addConstraint(Sketcher.Constraint("DistanceX", 43, 1, 43, 2, Q("1.537928 mm")))
sketch6.addConstraint(Sketcher.Constraint("DistanceX", 47, 1, 47, 2, Q("1.44611 mm")))
sketch6.addConstraint(Sketcher.Constraint("DistanceX", 51, 1, 51, 2, Q("1.055889 mm")))
sketch6.addConstraint(Sketcher.Constraint("DistanceX", 59, 1, 59, 2, Q("1.319141 mm")))
sketch6.addConstraint(Sketcher.Constraint("DistanceY", 4, 2, 4, 1, Q("3.746959 mm")))
sketch6.addConstraint(Sketcher.Constraint("DistanceY", 18, 2, 18, 1, Q("29.352642 mm")))
sketch6.addConstraint(Sketcher.Constraint("DistanceY", 34, 2, 34, 1, Q("32.30884 mm")))
sketch6.addConstraint(Sketcher.Constraint("DistanceY", 38, 2, 38, 1, Q("31.693719 mm")))
sketch6.addConstraint(Sketcher.Constraint("DistanceY", 42, 2, 42, 1, Q("30.66214 mm")))
sketch6.addConstraint(Sketcher.Constraint("DistanceY", 46, 2, 46, 1, Q("29.02065 mm")))
sketch6.addConstraint(Sketcher.Constraint("DistanceY", 54, 2, 54, 1, Q("23.313269 mm")))
sketch6.addConstraint(Sketcher.Constraint("DistanceY", 56, 1, 56, 2, Q("15.200941 mm")))
sketch6.addConstraint(Sketcher.Constraint("DistanceY", -1, 1, 4, 2, Q("42.412102 mm")))
sketch6.addConstraint(Sketcher.Constraint("DistanceX", -1, 1, 25, 2, Q("13.756799 mm")))
sketch6.addConstraint(Sketcher.Constraint("DistanceY", 4, 2, 1, 2, Q("0.5861 mm")))
sketch6.addConstraint(Sketcher.Constraint("DistanceX", 11, 2, 19, 2, Q("5.797499 mm")))
sketch6.addConstraint(Sketcher.Constraint("DistanceX", 19, 2, 23, 2, Q("2.775501 mm")))
sketch6.addConstraint(Sketcher.Constraint("DistanceX", 25, 2, 29, 2, Q("2.959398 mm")))
sketch6.addConstraint(Sketcher.Constraint("DistanceX", 24, 2, 33, 2, Q("6.7312 mm")))
sketch6.addConstraint(Sketcher.Constraint("DistanceX", 31, 2, 35, 2, Q("2.713799 mm")))
sketch6.addConstraint(Sketcher.Constraint("DistanceX", 33, 2, 41, 2, Q("6.0599 mm")))
sketch6.addConstraint(Sketcher.Constraint("DistanceX", 1, 2, 1, 1, Q("1.732735 mm")))
sketch6.addConstraint(Sketcher.Constraint("DistanceX", 3, 2, 3, 1, Q("38.777225 mm")))
sketch6.addConstraint(Sketcher.Constraint("DistanceX", 7, 1, 7, 2, Q("1.074924 mm")))
sketch6.addConstraint(Sketcher.Constraint("DistanceX", 13, 1, 13, 2, Q("1.532296 mm")))
sketch6.addConstraint(Sketcher.Constraint("DistanceX", 17, 1, 17, 2, Q("1.349175 mm")))
sketch6.addConstraint(Sketcher.Constraint("DistanceX", 31, 1, 31, 2, Q("1.334733 mm")))
sketch6.addConstraint(Sketcher.Constraint("DistanceX", 45, 1, 45, 2, Q("1.514978 mm")))
sketch6.addConstraint(Sketcher.Constraint("DistanceX", 49, 1, 49, 2, Q("1.400206 mm")))
sketch6.addConstraint(Sketcher.Constraint("DistanceX", 55, 1, 55, 2, Q("1.837986 mm")))
sketch6.addConstraint(Sketcher.Constraint("DistanceY", 0, 1, 0, 2, Q("17.375934 mm")))
sketch6.addConstraint(Sketcher.Constraint("DistanceY", 6, 2, 6, 1, Q("21.321913 mm")))
sketch6.addConstraint(Sketcher.Constraint("DistanceY", 10, 2, 10, 1, Q("24.228238 mm")))
sketch6.addConstraint(Sketcher.Constraint("DistanceY", 22, 2, 22, 1, Q("30.860855 mm")))
sketch6.addConstraint(Sketcher.Constraint("DistanceY", 26, 2, 26, 1, Q("31.782636 mm")))
sketch6.addConstraint(Sketcher.Constraint("DistanceY", 30, 2, 30, 1, Q("32.309953 mm")))
sketch6.addConstraint(Sketcher.Constraint("DistanceY", 50, 2, 50, 1, Q("27.077613 mm")))
pocket5 = body.newObject("PartDesign::Pocket", "Pocket004")
pocket5.Profile = sketch6
pocket5.Type = "ThroughAll"
doc.recompute()

mirrored5 = body.newObject("PartDesign::Mirrored", "Mirrored004")
mirrored5.Originals = [pocket5]
mirrored5.MirrorPlane = (doc.getObject("XZ_Plane"), [""])
body.Tip = mirrored5
doc.recompute()

fillet = body.newObject("PartDesign::Fillet", "Fillet")
fillet.Base = (mirrored5, edges_at(mirrored5, [
    (26.45, -36.517, 42.998),
    (13.1, -36.517, 42.998),
    (0, -36.517, 42.998),
    (-13.1, -36.517, 42.998),
    (-26.45, -36.517, 42.998),
    (26.45, 36.517, 42.998),
    (13.1, 36.517, 42.998),
    (0, 36.517, 42.998),
    (-13.1, 36.517, 42.998),
    (-26.45, 36.517, 42.998),
]))
fillet.Radius = 0.5
doc.recompute()

fillet2 = body.newObject("PartDesign::Fillet", "Fillet001")
fillet2.Base = (fillet, edges_at(fillet, [
    (26.45, 36.931, 25.622),
    (26.45, 38.25, 25.622),
    (26.45, 35.503, 19.099),
    (33.95, 33.665, 19.099),
    (33.95, 32.334, 15.334),
    (33.95, 31.278, 15.334),
    (33.95, 29.878, 13.391),
    (33.95, 28.431, 13.391),
    (0, 26.916, 11.75),
    (0, 25.379, 11.75),
    (0, 24.047, 10.718),
    (0, 22.349, 10.718),
    (0, 20.765, 10.103),
    (0, 19.319, 10.103),
    (0, 18.051, 10.102),
    (0, 16.716, 10.102),
    (0, 15.49, 10.629),
    (0, 13.757, 10.629),
    (0, 12.587, 11.551),
    (0, 11.012, 11.551),
    (0, 9.812, 13.059),
    (0, 8.104, 13.059),
    (0, 6.755, 14.964),
    (0, 5.547, 14.964),
    (0, 4.014, 18.184),
    (0, 2.599, 18.184),
]))
fillet2.Radius = 0.4

doc.recompute()
